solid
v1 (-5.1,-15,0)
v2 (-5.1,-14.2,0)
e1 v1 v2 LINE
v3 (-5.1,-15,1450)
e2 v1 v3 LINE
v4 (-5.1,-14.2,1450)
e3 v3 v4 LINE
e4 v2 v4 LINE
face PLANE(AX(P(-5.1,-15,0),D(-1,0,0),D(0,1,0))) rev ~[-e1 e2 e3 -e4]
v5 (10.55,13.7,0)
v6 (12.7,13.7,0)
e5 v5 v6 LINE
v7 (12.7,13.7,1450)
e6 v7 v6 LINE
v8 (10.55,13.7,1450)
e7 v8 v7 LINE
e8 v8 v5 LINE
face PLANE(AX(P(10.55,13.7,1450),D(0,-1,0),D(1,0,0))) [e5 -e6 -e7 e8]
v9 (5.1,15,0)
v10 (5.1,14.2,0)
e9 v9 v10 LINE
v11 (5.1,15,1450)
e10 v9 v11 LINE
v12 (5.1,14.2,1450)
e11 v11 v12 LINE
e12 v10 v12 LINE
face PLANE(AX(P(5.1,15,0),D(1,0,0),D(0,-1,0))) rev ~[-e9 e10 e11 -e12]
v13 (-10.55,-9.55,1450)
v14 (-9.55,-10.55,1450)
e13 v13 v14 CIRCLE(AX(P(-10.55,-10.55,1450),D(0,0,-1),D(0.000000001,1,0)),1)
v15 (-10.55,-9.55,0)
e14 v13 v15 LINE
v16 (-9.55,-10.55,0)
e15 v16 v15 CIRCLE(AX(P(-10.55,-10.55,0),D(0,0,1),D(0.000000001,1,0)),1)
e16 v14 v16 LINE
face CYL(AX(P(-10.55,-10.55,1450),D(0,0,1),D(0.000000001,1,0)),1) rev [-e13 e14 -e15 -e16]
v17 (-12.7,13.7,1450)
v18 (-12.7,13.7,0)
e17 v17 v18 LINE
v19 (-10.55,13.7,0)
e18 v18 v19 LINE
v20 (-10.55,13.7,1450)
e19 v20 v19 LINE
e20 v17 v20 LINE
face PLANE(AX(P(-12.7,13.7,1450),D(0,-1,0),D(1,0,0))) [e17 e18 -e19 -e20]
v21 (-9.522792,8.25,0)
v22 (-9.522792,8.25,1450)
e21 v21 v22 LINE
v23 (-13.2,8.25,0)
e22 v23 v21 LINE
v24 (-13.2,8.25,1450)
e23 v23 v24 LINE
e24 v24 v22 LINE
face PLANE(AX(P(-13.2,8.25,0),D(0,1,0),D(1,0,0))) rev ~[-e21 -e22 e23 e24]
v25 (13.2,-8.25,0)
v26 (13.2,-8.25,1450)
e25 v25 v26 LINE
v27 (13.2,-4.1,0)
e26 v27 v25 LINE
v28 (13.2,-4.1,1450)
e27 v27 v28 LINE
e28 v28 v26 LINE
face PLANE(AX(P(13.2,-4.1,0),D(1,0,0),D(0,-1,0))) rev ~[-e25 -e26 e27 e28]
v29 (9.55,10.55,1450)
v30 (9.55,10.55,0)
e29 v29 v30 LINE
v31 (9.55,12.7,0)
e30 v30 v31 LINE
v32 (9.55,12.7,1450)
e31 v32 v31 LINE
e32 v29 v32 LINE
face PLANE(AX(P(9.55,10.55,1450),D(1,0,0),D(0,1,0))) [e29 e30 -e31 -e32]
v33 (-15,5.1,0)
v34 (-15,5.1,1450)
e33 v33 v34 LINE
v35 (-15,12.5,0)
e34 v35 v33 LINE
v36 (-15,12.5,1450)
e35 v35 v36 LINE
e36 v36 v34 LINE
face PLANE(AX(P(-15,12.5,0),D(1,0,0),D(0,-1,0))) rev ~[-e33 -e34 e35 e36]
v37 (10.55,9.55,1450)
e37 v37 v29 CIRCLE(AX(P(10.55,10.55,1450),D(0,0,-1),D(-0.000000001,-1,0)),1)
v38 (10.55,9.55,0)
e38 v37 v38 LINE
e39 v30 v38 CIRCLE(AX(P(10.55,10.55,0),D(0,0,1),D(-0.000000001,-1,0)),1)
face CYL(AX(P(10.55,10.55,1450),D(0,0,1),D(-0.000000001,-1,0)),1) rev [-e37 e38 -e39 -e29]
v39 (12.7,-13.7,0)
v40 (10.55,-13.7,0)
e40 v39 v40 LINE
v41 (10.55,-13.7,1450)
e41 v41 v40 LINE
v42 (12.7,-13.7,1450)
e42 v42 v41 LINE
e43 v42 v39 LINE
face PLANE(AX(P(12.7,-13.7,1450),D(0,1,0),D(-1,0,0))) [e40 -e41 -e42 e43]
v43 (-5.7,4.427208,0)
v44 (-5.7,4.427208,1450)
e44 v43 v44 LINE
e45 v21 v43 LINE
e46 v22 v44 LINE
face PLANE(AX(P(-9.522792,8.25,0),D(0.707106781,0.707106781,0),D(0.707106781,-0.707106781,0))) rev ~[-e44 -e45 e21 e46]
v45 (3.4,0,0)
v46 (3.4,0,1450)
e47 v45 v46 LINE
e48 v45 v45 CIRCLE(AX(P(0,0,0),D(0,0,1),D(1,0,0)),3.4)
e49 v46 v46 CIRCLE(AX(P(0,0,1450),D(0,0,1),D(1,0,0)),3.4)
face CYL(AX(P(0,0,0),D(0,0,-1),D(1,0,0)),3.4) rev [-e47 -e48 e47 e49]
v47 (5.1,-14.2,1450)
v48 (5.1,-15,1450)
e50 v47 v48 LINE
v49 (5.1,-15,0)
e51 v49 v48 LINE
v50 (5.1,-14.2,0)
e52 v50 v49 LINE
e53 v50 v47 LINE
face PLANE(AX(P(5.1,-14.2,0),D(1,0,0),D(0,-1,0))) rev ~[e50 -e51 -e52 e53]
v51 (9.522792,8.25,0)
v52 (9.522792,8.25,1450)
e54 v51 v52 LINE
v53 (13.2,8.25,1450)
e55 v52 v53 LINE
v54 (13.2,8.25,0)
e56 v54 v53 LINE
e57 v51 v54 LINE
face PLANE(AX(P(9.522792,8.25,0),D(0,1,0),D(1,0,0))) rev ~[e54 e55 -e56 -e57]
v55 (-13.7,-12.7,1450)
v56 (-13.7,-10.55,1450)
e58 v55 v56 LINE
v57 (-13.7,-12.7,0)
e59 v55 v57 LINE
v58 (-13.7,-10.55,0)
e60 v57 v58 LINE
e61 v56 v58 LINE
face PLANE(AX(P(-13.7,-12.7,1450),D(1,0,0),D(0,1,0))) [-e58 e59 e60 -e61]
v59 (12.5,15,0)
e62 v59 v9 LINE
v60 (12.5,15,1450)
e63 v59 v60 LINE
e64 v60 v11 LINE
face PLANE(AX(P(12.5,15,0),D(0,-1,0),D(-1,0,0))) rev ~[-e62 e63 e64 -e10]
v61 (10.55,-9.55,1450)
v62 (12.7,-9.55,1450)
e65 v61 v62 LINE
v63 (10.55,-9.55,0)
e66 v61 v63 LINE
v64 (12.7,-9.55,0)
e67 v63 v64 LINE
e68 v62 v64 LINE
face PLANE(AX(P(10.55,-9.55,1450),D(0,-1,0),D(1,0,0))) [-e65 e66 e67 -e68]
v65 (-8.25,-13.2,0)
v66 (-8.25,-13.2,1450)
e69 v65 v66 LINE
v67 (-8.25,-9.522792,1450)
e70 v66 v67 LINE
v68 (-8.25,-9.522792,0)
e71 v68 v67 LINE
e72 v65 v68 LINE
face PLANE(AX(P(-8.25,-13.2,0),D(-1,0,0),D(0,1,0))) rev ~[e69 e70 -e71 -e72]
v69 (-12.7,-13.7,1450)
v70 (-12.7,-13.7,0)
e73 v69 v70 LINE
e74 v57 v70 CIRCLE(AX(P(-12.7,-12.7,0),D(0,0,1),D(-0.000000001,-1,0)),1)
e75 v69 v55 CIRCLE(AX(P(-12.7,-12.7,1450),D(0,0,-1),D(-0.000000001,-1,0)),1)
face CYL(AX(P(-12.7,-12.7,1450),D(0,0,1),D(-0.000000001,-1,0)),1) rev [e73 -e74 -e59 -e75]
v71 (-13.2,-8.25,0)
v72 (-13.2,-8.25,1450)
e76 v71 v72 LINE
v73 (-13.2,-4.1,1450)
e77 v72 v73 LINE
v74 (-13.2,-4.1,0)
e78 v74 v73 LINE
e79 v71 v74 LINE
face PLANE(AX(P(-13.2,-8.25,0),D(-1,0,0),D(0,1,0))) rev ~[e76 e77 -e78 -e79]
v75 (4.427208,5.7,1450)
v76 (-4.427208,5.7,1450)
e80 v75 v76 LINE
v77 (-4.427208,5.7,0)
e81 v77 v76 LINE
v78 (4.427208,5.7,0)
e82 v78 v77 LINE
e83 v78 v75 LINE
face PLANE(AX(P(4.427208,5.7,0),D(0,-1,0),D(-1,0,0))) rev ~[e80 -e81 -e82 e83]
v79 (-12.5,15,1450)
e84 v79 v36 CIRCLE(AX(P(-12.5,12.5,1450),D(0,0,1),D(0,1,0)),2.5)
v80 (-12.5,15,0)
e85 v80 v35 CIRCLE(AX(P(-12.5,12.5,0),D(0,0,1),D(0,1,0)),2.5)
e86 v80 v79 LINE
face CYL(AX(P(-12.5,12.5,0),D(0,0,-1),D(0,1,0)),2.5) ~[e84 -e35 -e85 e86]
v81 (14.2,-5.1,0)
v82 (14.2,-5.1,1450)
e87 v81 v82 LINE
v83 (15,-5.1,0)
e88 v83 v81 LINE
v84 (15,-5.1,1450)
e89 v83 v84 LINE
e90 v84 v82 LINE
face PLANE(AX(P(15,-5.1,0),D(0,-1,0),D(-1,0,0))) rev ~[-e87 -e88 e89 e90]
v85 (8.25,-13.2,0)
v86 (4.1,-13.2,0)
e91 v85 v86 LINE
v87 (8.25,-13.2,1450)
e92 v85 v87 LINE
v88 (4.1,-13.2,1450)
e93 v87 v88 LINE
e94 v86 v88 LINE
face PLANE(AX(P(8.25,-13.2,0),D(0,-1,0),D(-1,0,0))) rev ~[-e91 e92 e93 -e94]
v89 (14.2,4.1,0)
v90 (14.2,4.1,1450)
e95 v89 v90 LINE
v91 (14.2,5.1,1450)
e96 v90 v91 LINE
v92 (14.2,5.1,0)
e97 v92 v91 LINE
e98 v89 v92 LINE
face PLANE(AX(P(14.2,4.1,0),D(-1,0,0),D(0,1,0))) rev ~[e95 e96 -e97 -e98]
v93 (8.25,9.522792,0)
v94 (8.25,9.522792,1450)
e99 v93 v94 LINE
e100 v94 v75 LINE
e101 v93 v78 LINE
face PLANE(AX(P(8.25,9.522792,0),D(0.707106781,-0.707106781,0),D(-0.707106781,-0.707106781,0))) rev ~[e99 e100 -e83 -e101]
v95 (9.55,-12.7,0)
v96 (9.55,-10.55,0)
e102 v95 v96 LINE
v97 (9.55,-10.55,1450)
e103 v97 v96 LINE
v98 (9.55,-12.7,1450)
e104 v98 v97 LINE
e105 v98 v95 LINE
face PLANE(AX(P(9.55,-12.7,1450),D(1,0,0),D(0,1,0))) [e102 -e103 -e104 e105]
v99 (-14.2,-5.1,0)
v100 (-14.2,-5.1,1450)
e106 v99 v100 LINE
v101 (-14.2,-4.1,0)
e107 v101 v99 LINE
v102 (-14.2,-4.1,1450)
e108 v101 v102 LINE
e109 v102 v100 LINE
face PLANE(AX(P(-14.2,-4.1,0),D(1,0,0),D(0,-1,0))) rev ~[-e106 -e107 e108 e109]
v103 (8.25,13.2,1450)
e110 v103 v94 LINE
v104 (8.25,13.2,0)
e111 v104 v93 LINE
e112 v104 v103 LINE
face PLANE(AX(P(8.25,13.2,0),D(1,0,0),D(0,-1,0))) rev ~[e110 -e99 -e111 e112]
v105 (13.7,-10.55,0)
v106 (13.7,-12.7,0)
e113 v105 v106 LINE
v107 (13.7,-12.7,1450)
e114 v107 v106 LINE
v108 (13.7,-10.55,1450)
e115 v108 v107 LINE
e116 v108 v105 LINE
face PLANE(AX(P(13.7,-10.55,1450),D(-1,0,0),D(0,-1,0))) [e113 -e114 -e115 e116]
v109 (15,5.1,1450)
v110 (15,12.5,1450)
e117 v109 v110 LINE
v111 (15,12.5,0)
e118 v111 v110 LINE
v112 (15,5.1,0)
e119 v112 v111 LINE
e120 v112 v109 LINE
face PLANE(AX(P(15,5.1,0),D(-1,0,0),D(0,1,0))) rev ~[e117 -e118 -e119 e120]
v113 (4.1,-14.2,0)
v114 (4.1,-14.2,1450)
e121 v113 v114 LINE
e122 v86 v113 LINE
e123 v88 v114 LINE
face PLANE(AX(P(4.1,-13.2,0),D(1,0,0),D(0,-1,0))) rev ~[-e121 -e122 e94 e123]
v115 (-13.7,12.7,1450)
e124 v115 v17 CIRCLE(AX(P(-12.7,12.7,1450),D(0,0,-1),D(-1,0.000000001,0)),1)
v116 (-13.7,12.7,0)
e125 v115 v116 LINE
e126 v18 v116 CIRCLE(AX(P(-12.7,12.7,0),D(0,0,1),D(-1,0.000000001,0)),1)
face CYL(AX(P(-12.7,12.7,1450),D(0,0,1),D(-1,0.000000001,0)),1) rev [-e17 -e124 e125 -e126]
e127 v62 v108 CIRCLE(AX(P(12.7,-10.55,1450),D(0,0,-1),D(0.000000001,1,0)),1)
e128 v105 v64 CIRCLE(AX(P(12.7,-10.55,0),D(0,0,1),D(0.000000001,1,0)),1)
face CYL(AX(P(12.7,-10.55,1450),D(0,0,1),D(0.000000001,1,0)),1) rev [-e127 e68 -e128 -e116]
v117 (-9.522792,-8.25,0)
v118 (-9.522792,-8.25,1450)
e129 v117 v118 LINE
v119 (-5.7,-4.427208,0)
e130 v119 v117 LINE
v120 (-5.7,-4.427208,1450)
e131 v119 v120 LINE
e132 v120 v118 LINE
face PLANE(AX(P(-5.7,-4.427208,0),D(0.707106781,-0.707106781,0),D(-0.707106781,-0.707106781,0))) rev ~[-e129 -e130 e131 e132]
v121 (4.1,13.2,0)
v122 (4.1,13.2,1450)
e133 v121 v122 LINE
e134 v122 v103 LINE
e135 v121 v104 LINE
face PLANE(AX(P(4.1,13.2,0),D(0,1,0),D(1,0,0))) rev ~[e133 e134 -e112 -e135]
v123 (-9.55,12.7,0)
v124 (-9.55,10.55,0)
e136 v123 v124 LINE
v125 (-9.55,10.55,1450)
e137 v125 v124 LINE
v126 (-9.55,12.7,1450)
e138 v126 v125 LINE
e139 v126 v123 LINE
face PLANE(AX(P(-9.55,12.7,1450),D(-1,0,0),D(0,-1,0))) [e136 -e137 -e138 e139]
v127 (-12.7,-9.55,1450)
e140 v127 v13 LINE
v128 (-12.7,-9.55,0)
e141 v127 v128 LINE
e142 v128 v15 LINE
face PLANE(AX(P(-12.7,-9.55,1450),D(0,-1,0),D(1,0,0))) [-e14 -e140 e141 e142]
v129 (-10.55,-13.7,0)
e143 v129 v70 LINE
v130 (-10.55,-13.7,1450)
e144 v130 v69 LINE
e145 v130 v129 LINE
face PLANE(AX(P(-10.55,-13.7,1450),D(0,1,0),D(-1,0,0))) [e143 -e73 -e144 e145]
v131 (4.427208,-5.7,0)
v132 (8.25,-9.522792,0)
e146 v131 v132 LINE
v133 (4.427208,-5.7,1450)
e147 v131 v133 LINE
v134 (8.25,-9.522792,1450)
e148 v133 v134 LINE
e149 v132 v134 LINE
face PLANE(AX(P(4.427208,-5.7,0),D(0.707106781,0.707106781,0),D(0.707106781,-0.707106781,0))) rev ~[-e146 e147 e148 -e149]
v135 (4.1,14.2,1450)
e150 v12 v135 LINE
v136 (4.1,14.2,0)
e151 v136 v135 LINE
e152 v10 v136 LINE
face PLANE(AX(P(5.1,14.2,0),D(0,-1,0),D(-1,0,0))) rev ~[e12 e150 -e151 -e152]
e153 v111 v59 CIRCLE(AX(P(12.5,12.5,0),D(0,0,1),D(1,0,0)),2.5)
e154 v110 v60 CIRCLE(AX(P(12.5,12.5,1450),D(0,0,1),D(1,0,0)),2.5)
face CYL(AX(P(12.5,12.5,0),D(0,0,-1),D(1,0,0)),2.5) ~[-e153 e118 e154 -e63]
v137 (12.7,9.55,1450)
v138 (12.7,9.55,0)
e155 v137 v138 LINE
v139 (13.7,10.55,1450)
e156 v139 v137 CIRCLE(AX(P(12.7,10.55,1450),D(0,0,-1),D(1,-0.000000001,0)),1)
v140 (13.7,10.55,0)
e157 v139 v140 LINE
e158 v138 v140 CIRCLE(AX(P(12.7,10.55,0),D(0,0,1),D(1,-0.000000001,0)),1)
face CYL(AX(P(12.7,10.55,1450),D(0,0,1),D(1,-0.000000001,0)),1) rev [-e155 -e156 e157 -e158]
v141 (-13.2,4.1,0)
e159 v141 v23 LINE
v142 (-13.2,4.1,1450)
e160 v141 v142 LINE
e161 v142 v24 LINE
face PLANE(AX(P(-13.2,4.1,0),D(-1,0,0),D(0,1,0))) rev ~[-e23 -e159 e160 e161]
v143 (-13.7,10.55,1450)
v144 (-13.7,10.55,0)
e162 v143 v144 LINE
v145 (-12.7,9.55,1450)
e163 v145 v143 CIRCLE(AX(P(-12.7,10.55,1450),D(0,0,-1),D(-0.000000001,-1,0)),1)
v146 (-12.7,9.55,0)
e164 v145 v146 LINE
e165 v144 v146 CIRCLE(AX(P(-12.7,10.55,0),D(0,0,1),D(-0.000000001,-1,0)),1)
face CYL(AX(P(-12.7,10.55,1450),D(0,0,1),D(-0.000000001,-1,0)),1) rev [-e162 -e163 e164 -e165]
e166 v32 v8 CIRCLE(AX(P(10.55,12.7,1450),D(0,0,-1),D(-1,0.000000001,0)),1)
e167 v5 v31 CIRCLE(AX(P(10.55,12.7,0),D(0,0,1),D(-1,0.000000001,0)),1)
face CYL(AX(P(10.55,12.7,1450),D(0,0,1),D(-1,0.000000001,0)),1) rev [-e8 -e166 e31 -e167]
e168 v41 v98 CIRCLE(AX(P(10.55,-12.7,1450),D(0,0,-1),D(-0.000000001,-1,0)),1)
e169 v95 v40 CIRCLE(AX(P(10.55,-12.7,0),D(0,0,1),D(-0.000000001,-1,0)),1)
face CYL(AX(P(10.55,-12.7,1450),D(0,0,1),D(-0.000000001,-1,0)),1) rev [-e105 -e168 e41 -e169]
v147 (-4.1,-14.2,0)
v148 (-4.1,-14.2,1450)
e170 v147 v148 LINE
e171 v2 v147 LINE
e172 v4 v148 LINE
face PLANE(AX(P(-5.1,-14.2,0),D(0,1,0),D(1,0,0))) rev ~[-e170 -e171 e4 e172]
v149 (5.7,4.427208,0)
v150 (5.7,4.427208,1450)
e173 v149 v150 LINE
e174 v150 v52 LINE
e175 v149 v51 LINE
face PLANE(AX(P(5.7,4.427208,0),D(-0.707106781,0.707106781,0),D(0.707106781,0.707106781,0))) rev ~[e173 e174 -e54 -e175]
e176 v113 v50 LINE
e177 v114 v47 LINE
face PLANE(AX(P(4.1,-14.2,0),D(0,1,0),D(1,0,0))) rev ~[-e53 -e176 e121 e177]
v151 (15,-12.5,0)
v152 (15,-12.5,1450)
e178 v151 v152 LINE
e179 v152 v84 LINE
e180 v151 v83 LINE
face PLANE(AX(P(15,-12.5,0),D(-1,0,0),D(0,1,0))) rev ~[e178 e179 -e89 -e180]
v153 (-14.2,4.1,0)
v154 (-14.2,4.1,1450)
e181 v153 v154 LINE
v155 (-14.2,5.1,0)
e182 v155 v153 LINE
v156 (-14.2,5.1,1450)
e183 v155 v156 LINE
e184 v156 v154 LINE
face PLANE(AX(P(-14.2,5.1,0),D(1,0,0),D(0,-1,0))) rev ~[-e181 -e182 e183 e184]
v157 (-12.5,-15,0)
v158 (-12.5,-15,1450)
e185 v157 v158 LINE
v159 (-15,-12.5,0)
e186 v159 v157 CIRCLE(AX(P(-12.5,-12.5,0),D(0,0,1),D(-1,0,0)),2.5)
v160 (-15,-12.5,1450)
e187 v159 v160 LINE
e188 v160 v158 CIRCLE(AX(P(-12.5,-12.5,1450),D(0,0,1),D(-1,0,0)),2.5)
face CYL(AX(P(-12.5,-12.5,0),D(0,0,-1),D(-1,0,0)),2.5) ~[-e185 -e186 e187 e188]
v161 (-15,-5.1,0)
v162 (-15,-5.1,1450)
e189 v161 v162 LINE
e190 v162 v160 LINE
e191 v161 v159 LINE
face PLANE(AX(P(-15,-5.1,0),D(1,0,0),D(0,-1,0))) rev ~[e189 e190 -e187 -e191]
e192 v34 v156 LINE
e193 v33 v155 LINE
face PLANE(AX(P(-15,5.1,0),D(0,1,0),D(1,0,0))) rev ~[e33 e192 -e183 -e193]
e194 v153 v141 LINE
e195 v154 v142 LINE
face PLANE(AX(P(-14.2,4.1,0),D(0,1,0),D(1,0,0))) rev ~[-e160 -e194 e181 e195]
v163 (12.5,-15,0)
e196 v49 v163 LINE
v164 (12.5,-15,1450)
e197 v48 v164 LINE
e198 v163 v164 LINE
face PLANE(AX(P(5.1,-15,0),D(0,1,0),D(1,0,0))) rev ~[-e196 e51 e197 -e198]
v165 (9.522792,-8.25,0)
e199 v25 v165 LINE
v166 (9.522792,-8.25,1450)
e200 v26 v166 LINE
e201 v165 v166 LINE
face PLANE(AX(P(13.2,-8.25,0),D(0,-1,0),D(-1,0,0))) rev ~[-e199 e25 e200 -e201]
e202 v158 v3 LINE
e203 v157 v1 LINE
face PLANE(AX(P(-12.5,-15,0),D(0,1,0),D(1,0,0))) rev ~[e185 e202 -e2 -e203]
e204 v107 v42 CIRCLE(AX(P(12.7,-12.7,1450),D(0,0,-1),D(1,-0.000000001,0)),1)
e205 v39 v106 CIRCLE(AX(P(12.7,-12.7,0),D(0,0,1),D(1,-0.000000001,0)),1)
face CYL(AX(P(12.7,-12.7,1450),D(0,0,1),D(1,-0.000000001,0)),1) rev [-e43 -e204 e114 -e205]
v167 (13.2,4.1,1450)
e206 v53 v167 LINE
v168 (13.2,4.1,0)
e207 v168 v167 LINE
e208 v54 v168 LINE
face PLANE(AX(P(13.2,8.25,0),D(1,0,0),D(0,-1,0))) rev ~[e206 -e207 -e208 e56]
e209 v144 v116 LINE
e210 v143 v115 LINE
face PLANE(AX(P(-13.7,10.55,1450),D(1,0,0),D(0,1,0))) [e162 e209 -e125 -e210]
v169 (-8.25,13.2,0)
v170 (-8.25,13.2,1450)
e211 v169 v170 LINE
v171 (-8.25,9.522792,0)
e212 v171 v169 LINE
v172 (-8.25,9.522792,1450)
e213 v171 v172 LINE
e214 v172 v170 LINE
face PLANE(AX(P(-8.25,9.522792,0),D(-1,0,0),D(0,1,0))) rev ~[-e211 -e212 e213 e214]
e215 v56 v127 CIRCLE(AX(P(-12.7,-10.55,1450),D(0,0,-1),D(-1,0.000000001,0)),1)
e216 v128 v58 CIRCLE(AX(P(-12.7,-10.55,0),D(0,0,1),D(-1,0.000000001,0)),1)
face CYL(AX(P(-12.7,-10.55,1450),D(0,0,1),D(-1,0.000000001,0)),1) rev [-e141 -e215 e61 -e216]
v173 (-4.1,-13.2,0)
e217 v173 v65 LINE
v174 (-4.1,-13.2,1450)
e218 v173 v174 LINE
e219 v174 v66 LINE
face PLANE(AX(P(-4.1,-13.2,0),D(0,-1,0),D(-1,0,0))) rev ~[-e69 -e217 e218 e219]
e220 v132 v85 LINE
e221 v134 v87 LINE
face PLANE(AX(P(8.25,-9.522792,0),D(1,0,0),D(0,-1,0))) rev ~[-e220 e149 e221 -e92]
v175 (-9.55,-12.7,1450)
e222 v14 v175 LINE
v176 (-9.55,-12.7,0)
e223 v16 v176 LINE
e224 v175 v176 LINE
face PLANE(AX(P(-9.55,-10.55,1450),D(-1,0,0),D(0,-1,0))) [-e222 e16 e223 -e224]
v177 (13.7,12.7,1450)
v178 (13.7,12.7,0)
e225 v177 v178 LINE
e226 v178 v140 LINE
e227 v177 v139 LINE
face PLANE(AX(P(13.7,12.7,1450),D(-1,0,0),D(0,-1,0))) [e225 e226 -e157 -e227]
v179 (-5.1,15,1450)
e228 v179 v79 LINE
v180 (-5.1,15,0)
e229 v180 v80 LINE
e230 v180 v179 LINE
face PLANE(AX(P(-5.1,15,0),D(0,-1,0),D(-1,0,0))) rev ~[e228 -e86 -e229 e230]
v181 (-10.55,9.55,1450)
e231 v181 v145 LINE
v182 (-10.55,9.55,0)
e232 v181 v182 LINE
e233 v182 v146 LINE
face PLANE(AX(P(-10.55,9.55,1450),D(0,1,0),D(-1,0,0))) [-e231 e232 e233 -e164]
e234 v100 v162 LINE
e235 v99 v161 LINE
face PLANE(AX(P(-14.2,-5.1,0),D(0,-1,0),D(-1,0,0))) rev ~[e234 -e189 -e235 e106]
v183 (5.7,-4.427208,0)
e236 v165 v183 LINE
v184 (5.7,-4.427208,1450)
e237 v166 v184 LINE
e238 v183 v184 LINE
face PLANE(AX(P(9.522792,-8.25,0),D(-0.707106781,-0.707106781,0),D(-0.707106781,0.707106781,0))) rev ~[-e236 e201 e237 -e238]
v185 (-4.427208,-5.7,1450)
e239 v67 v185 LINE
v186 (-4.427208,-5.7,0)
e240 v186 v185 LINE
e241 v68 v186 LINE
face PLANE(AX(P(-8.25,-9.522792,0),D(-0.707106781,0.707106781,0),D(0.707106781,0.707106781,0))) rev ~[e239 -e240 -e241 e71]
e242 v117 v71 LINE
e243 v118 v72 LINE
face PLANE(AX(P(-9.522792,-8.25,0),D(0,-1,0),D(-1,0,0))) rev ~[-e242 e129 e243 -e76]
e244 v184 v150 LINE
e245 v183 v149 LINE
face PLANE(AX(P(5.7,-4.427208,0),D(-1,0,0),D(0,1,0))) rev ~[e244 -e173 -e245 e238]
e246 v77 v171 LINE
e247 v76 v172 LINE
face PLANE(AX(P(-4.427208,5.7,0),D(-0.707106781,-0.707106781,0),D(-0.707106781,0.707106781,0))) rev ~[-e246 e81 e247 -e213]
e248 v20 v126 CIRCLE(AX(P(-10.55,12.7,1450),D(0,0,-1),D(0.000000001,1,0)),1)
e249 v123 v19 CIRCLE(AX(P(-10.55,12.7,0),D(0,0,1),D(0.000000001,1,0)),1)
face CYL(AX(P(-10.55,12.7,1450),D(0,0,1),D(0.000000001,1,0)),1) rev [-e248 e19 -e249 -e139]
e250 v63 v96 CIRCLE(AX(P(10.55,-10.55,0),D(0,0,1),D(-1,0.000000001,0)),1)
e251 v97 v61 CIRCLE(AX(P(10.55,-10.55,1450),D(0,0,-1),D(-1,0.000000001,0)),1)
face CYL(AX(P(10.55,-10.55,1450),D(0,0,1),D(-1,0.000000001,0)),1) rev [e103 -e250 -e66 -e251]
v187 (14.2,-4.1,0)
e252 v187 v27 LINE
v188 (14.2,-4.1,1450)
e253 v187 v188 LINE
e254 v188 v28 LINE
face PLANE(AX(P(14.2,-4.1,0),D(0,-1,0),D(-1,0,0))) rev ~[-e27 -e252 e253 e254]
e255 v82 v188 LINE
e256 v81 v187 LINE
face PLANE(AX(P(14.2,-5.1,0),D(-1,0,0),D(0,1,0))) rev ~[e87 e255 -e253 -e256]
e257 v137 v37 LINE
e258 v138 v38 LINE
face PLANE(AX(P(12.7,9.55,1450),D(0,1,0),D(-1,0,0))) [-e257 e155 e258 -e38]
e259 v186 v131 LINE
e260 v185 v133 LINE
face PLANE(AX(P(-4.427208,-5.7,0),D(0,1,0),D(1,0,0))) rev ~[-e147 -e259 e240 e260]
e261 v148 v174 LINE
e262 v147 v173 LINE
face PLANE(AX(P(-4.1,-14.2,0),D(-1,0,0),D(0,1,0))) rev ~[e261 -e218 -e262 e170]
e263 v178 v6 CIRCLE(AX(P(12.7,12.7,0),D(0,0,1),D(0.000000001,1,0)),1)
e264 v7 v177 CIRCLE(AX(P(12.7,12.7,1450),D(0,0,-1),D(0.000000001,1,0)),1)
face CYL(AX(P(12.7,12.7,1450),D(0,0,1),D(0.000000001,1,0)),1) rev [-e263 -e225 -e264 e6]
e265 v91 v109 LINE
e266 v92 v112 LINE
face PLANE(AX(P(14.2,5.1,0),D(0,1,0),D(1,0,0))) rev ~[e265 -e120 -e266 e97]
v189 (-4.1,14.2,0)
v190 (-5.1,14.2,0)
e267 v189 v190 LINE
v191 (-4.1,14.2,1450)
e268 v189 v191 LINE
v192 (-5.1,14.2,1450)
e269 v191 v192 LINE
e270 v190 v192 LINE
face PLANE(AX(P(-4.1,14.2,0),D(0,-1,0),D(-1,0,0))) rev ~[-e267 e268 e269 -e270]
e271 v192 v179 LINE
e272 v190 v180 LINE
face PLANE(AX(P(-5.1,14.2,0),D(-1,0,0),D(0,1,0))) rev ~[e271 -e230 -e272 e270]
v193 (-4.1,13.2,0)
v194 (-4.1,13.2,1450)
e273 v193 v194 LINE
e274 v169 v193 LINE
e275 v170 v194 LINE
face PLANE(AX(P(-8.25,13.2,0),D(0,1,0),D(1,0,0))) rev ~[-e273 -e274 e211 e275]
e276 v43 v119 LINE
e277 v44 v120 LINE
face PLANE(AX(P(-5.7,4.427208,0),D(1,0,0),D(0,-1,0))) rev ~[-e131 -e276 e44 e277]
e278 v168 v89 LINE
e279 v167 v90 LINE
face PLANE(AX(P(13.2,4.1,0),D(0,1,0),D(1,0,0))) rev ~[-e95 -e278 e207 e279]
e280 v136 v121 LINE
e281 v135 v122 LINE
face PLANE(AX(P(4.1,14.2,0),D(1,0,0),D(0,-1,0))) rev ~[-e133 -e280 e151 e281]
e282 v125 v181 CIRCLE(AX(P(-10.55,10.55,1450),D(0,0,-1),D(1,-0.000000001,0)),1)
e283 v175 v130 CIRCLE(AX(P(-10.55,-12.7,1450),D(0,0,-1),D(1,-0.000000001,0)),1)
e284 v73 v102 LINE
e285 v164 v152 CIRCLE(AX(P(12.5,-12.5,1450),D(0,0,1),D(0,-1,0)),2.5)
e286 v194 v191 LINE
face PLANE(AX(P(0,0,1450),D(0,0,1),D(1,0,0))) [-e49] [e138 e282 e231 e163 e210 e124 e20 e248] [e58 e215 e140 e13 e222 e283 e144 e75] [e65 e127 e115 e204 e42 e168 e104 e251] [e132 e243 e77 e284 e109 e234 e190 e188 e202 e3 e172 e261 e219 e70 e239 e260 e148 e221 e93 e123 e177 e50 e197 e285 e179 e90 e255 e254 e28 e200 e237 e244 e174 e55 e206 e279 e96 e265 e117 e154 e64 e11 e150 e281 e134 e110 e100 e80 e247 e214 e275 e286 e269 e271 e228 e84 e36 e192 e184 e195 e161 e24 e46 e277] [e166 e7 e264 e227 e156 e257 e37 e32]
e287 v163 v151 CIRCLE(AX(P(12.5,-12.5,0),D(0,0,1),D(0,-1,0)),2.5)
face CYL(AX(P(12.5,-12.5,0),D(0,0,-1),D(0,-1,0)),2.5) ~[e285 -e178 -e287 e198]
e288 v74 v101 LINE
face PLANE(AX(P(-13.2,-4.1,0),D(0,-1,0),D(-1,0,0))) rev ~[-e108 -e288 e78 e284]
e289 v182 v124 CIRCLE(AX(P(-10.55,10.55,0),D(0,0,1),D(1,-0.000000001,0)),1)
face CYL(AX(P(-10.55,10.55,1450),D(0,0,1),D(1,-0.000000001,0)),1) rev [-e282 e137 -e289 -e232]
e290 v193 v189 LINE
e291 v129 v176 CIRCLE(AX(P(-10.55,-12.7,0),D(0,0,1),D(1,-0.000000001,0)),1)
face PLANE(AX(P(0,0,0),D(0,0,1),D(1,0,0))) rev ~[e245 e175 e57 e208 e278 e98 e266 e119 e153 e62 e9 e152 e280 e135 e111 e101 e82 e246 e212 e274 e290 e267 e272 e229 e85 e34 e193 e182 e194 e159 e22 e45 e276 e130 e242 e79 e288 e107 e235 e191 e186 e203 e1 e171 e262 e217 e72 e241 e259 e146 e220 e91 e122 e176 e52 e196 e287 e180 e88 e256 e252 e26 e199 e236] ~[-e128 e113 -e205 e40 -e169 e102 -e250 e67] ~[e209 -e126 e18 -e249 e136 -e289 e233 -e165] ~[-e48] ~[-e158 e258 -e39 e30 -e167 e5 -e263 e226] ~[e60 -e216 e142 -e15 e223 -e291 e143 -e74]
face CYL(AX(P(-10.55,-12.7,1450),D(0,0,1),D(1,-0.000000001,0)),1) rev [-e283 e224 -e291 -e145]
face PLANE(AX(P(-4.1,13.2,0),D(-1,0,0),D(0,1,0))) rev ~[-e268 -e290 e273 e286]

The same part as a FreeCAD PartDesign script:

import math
import FreeCAD as App
import Part
import Sketcher

doc = App.newDocument("Part")
params = doc.addObject("Spreadsheet::Sheet", "Params")
for row, (alias, value) in enumerate([
    ("sketch1_diameter", "6.8 mm"),
    ("sketch1_radius", "2.5 mm"),
    ("sketch1_width", "1 mm"),
    ("sketch1_width2", "7.4 mm"),
    ("sketch1_width3", "0.8 mm"),
    ("pad1_length", "1450 mm"),
    ("sketch2_radius", "1 mm"),
    ("sketch2_width", "2.15 mm"),
], start=1):
    params.set(f"A{row}", alias)
    params.set(f"B{row}", "=" + value)
    params.setAlias(f"B{row}", alias)

body = doc.addObject("PartDesign::Body", "Body")

sketch1 = body.newObject("Sketcher::SketchObject", "Sketch")
sketch1.AttachmentSupport = (doc.getObject("XY_Plane"), [""])
sketch1.MapMode = "FlatFace"
sketch1.addGeometry(Part.LineSegment(App.Vector(-5.1, 14.2, 0), App.Vector(-5.1, 15, 0)), False)
sketch1.addGeometry(Part.LineSegment(App.Vector(-5.1, 15, 0), App.Vector(-12.5, 15, 0)), False)
sketch1.addGeometry(Part.ArcOfCircle(Part.Circle(App.Vector(-12.5, 12.5, 0), App.Vector(0, 0, 1), 2.5), math.radians(90), math.radians(180)), False)
sketch1.addGeometry(Part.LineSegment(App.Vector(-15, 12.5, 0), App.Vector(-15, 5.1, 0)), False)
sketch1.addGeometry(Part.LineSegment(App.Vector(-15, 5.1, 0), App.Vector(-14.2, 5.1, 0)), False)
sketch1.addGeometry(Part.LineSegment(App.Vector(-14.2, 5.1, 0), App.Vector(-14.2, 4.1, 0)), False)
sketch1.addGeometry(Part.LineSegment(App.Vector(-14.2, 4.1, 0), App.Vector(-13.2, 4.1, 0)), False)
sketch1.addGeometry(Part.LineSegment(App.Vector(-13.2, 4.1, 0), App.Vector(-13.2, 8.2, 0)), False)
sketch1.addGeometry(Part.LineSegment(App.Vector(-13.2, 8.2, 0), App.Vector(-9.5, 8.2, 0)), False)
sketch1.addGeometry(Part.LineSegment(App.Vector(-9.5, 8.2, 0), App.Vector(-5.7, 4.4, 0)), False)
sketch1.addGeometry(Part.LineSegment(App.Vector(-5.7, 4.4, 0), App.Vector(-5.7, -4.4, 0)), False)
sketch1.addGeometry(Part.LineSegment(App.Vector(-5.7, -4.4, 0), App.Vector(-9.5, -8.2, 0)), False)
sketch1.addGeometry(Part.LineSegment(App.Vector(-9.5, -8.2, 0), App.Vector(-13.2, -8.2, 0)), False)
sketch1.addGeometry(Part.LineSegment(App.Vector(-13.2, -8.2, 0), App.Vector(-13.2, -4.1, 0)), False)
sketch1.addGeometry(Part.LineSegment(App.Vector(-13.2, -4.1, 0), App.Vector(-14.2, -4.1, 0)), False)
sketch1.addGeometry(Part.LineSegment(App.Vector(-14.2, -4.1, 0), App.Vector(-14.2, -5.1, 0)), False)
sketch1.addGeometry(Part.LineSegment(App.Vector(-14.2, -5.1, 0), App.Vector(-15, -5.1, 0)), False)
sketch1.addGeometry(Part.LineSegment(App.Vector(-15, -5.1, 0), App.Vector(-15, -12.5, 0)), False)
sketch1.addGeometry(Part.ArcOfCircle(Part.Circle(App.Vector(-12.5, -12.5, 0), App.Vector(0, 0, 1), 2.5), math.radians(180), math.radians(270)), False)
sketch1.addGeometry(Part.LineSegment(App.Vector(-12.5, -15, 0), App.Vector(-5.1, -15, 0)), False)
sketch1.addGeometry(Part.LineSegment(App.Vector(-5.1, -15, 0), App.Vector(-5.1, -14.2, 0)), False)
sketch1.addGeometry(Part.LineSegment(App.Vector(-5.1, -14.2, 0), App.Vector(-4.1, -14.2, 0)), False)
sketch1.addGeometry(Part.LineSegment(App.Vector(-4.1, -14.2, 0), App.Vector(-4.1, -13.2, 0)), False)
sketch1.addGeometry(Part.LineSegment(App.Vector(-4.1, -13.2, 0), App.Vector(-8.2, -13.2, 0)), False)
sketch1.addGeometry(Part.LineSegment(App.Vector(-8.2, -13.2, 0), App.Vector(-8.2, -9.5, 0)), False)
sketch1.addGeometry(Part.LineSegment(App.Vector(-8.2, -9.5, 0), App.Vector(-4.4, -5.7, 0)), False)
sketch1.addGeometry(Part.LineSegment(App.Vector(-4.4, -5.7, 0), App.Vector(4.4, -5.7, 0)), False)
sketch1.addGeometry(Part.LineSegment(App.Vector(4.4, -5.7, 0), App.Vector(8.2, -9.5, 0)), False)
sketch1.addGeometry(Part.LineSegment(App.Vector(8.2, -9.5, 0), App.Vector(8.2, -13.2, 0)), False)
sketch1.addGeometry(Part.LineSegment(App.Vector(8.2, -13.2, 0), App.Vector(4.1, -13.2, 0)), False)
sketch1.addGeometry(Part.LineSegment(App.Vector(4.1, -13.2, 0), App.Vector(4.1, -14.2, 0)), False)
sketch1.addGeometry(Part.LineSegment(App.Vector(4.1, -14.2, 0), App.Vector(5.1, -14.2, 0)), False)
sketch1.addGeometry(Part.LineSegment(App.Vector(5.1, -14.2, 0), App.Vector(5.1, -15, 0)), False)
sketch1.addGeometry(Part.LineSegment(App.Vector(5.1, -15, 0), App.Vector(12.5, -15, 0)), False)
sketch1.addGeometry(Part.ArcOfCircle(Part.Circle(App.Vector(12.5, -12.5, 0), App.Vector(0, 0, 1), 2.5), math.radians(-90), math.radians(0)), False)
sketch1.addGeometry(Part.LineSegment(App.Vector(15, -12.5, 0), App.Vector(15, -5.1, 0)), False)
sketch1.addGeometry(Part.LineSegment(App.Vector(15, -5.1, 0), App.Vector(14.2, -5.1, 0)), False)
sketch1.addGeometry(Part.LineSegment(App.Vector(14.2, -5.1, 0), App.Vector(14.2, -4.1, 0)), False)
sketch1.addGeometry(Part.LineSegment(App.Vector(14.2, -4.1, 0), App.Vector(13.2, -4.1, 0)), False)
sketch1.addGeometry(Part.LineSegment(App.Vector(13.2, -4.1, 0), App.Vector(13.2, -8.2, 0)), False)
sketch1.addGeometry(Part.LineSegment(App.Vector(13.2, -8.2, 0), App.Vector(9.5, -8.2, 0)), False)
sketch1.addGeometry(Part.LineSegment(App.Vector(9.5, -8.2, 0), App.Vector(5.7, -4.4, 0)), False)
sketch1.addGeometry(Part.LineSegment(App.Vector(5.7, -4.4, 0), App.Vector(5.7, 4.4, 0)), False)
sketch1.addGeometry(Part.LineSegment(App.Vector(5.7, 4.4, 0), App.Vector(9.5, 8.2, 0)), False)
sketch1.addGeometry(Part.LineSegment(App.Vector(9.5, 8.2, 0), App.Vector(13.2, 8.2, 0)), False)
sketch1.addGeometry(Part.LineSegment(App.Vector(13.2, 8.2, 0), App.Vector(13.2, 4.1, 0)), False)
sketch1.addGeometry(Part.LineSegment(App.Vector(13.2, 4.1, 0), App.Vector(14.2, 4.1, 0)), False)
sketch1.addGeometry(Part.LineSegment(App.Vector(14.2, 4.1, 0), App.Vector(14.2, 5.1, 0)), False)
sketch1.addGeometry(Part.LineSegment(App.Vector(14.2, 5.1, 0), App.Vector(15, 5.1, 0)), False)
sketch1.addGeometry(Part.LineSegment(App.Vector(15, 5.1, 0), App.Vector(15, 12.5, 0)), False)
sketch1.addGeometry(Part.ArcOfCircle(Part.Circle(App.Vector(12.5, 12.5, 0), App.Vector(0, 0, 1), 2.5), math.radians(0), math.radians(90)), False)
sketch1.addGeometry(Part.LineSegment(App.Vector(12.5, 15, 0), App.Vector(5.1, 15, 0)), False)
sketch1.addGeometry(Part.LineSegment(App.Vector(5.1, 15, 0), App.Vector(5.1, 14.2, 0)), False)
sketch1.addGeometry(Part.LineSegment(App.Vector(5.1, 14.2, 0), App.Vector(4.1, 14.2, 0)), False)
sketch1.addGeometry(Part.LineSegment(App.Vector(4.1, 14.2, 0), App.Vector(4.1, 13.2, 0)), False)
sketch1.addGeometry(Part.LineSegment(App.Vector(4.1, 13.2, 0), App.Vector(8.2, 13.2, 0)), False)
sketch1.addGeometry(Part.LineSegment(App.Vector(8.2, 13.2, 0), App.Vector(8.2, 9.5, 0)), False)
sketch1.addGeometry(Part.LineSegment(App.Vector(8.2, 9.5, 0), App.Vector(4.4, 5.7, 0)), False)
sketch1.addGeometry(Part.LineSegment(App.Vector(4.4, 5.7, 0), App.Vector(-4.4, 5.7, 0)), False)
sketch1.addGeometry(Part.LineSegment(App.Vector(-4.4, 5.7, 0), App.Vector(-8.2, 9.5, 0)), False)
sketch1.addGeometry(Part.LineSegment(App.Vector(-8.2, 9.5, 0), App.Vector(-8.2, 13.2, 0)), False)
sketch1.addGeometry(Part.LineSegment(App.Vector(-8.2, 13.2, 0), App.Vector(-4.1, 13.2, 0)), False)
sketch1.addGeometry(Part.LineSegment(App.Vector(-4.1, 13.2, 0), App.Vector(-4.1, 14.2, 0)), False)
sketch1.addGeometry(Part.LineSegment(App.Vector(-4.1, 14.2, 0), App.Vector(-5.1, 14.2, 0)), False)
sketch1.addGeometry(Part.Circle(App.Vector(0, 0, 0), App.Vector(0, 0, 1), 3.4), False)
sketch1.addConstraint(Sketcher.Constraint("Coincident", 0, 2, 1, 1))
sketch1.addConstraint(Sketcher.Constraint("Tangent", 1, 2, 2, 1))
sketch1.addConstraint(Sketcher.Constraint("Tangent", 2, 2, 3, 1))
sketch1.addConstraint(Sketcher.Constraint("Coincident", 3, 2, 4, 1))
sketch1.addConstraint(Sketcher.Constraint("Coincident", 4, 2, 5, 1))
sketch1.addConstraint(Sketcher.Constraint("Coincident", 5, 2, 6, 1))
sketch1.addConstraint(Sketcher.Constraint("Coincident", 6, 2, 7, 1))
sketch1.addConstraint(Sketcher.Constraint("Coincident", 7, 2, 8, 1))
sketch1.addConstraint(Sketcher.Constraint("Coincident", 8, 2, 9, 1))
sketch1.addConstraint(Sketcher.Constraint("Coincident", 9, 2, 10, 1))
sketch1.addConstraint(Sketcher.Constraint("Coincident", 10, 2, 11, 1))
sketch1.addConstraint(Sketcher.Constraint("Coincident", 11, 2, 12, 1))
sketch1.addConstraint(Sketcher.Constraint("Coincident", 12, 2, 13, 1))
sketch1.addConstraint(Sketcher.Constraint("Coincident", 13, 2, 14, 1))
sketch1.addConstraint(Sketcher.Constraint("Coincident", 14, 2, 15, 1))
sketch1.addConstraint(Sketcher.Constraint("Coincident", 15, 2, 16, 1))
sketch1.addConstraint(Sketcher.Constraint("Coincident", 16, 2, 17, 1))
sketch1.addConstraint(Sketcher.Constraint("Tangent", 17, 2, 18, 1))
sketch1.addConstraint(Sketcher.Constraint("Tangent", 18, 2, 19, 1))
sketch1.addConstraint(Sketcher.Constraint("Coincident", 19, 2, 20, 1))
sketch1.addConstraint(Sketcher.Constraint("Coincident", 20, 2, 21, 1))
sketch1.addConstraint(Sketcher.Constraint("Coincident", 21, 2, 22, 1))
sketch1.addConstraint(Sketcher.Constraint("Coincident", 22, 2, 23, 1))
sketch1.addConstraint(Sketcher.Constraint("Coincident", 23, 2, 24, 1))
sketch1.addConstraint(Sketcher.Constraint("Coincident", 24, 2, 25, 1))
sketch1.addConstraint(Sketcher.Constraint("Coincident", 25, 2, 26, 1))
sketch1.addConstraint(Sketcher.Constraint("Coincident", 26, 2, 27, 1))
sketch1.addConstraint(Sketcher.Constraint("Coincident", 27, 2, 28, 1))
sketch1.addConstraint(Sketcher.Constraint("Coincident", 28, 2, 29, 1))
sketch1.addConstraint(Sketcher.Constraint("Coincident", 29, 2, 30, 1))
sketch1.addConstraint(Sketcher.Constraint("Coincident", 30, 2, 31, 1))
sketch1.addConstraint(Sketcher.Constraint("Coincident", 31, 2, 32, 1))
sketch1.addConstraint(Sketcher.Constraint("Coincident", 32, 2, 33, 1))
sketch1.addConstraint(Sketcher.Constraint("Tangent", 33, 2, 34, 1))
sketch1.addConstraint(Sketcher.Constraint("Tangent", 34, 2, 35, 1))
sketch1.addConstraint(Sketcher.Constraint("Coincident", 35, 2, 36, 1))
sketch1.addConstraint(Sketcher.Constraint("Coincident", 36, 2, 37, 1))
sketch1.addConstraint(Sketcher.Constraint("Coincident", 37, 2, 38, 1))
sketch1.addConstraint(Sketcher.Constraint("Coincident", 38, 2, 39, 1))
sketch1.addConstraint(Sketcher.Constraint("Coincident", 39, 2, 40, 1))
sketch1.addConstraint(Sketcher.Constraint("Coincident", 40, 2, 41, 1))
sketch1.addConstraint(Sketcher.Constraint("Coincident", 41, 2, 42, 1))
sketch1.addConstraint(Sketcher.Constraint("Coincident", 42, 2, 43, 1))
sketch1.addConstraint(Sketcher.Constraint("Coincident", 43, 2, 44, 1))
sketch1.addConstraint(Sketcher.Constraint("Coincident", 44, 2, 45, 1))
sketch1.addConstraint(Sketcher.Constraint("Coincident", 45, 2, 46, 1))
sketch1.addConstraint(Sketcher.Constraint("Coincident", 46, 2, 47, 1))
sketch1.addConstraint(Sketcher.Constraint("Coincident", 47, 2, 48, 1))
sketch1.addConstraint(Sketcher.Constraint("Coincident", 48, 2, 49, 1))
sketch1.addConstraint(Sketcher.Constraint("Tangent", 49, 2, 50, 1))
sketch1.addConstraint(Sketcher.Constraint("Tangent", 50, 2, 51, 1))
sketch1.addConstraint(Sketcher.Constraint("Coincident", 51, 2, 52, 1))
sketch1.addConstraint(Sketcher.Constraint("Coincident", 52, 2, 53, 1))
sketch1.addConstraint(Sketcher.Constraint("Coincident", 53, 2, 54, 1))
sketch1.addConstraint(Sketcher.Constraint("Coincident", 54, 2, 55, 1))
sketch1.addConstraint(Sketcher.Constraint("Coincident", 55, 2, 56, 1))
sketch1.addConstraint(Sketcher.Constraint("Coincident", 56, 2, 57, 1))
sketch1.addConstraint(Sketcher.Constraint("Coincident", 57, 2, 58, 1))
sketch1.addConstraint(Sketcher.Constraint("Coincident", 58, 2, 59, 1))
sketch1.addConstraint(Sketcher.Constraint("Coincident", 59, 2, 60, 1))
sketch1.addConstraint(Sketcher.Constraint("Coincident", 60, 2, 61, 1))
sketch1.addConstraint(Sketcher.Constraint("Coincident", 61, 2, 62, 1))
sketch1.addConstraint(Sketcher.Constraint("Coincident", 62, 2, 63, 1))
sketch1.addConstraint(Sketcher.Constraint("Coincident", 63, 2, 0, 1))
sketch1.addConstraint(Sketcher.Constraint("Vertical", 0))
sketch1.addConstraint(Sketcher.Constraint("Horizontal", 1))
sketch1.addConstraint(Sketcher.Constraint("Vertical", 3))
sketch1.addConstraint(Sketcher.Constraint("Horizontal", 4))
sketch1.addConstraint(Sketcher.Constraint("Vertical", 5))
sketch1.addConstraint(Sketcher.Constraint("Horizontal", 6))
sketch1.addConstraint(Sketcher.Constraint("Vertical", 7))
sketch1.addConstraint(Sketcher.Constraint("Horizontal", 8))
sketch1.addConstraint(Sketcher.Constraint("Vertical", 10))
sketch1.addConstraint(Sketcher.Constraint("Horizontal", 12))
sketch1.addConstraint(Sketcher.Constraint("Vertical", 13))
sketch1.addConstraint(Sketcher.Constraint("Horizontal", 14))
sketch1.addConstraint(Sketcher.Constraint("Vertical", 15))
sketch1.addConstraint(Sketcher.Constraint("Horizontal", 16))
sketch1.addConstraint(Sketcher.Constraint("Vertical", 17))
sketch1.addConstraint(Sketcher.Constraint("Horizontal", 19))
sketch1.addConstraint(Sketcher.Constraint("Vertical", 20))
sketch1.addConstraint(Sketcher.Constraint("Horizontal", 21))
sketch1.addConstraint(Sketcher.Constraint("Vertical", 22))
sketch1.addConstraint(Sketcher.Constraint("Horizontal", 23))
sketch1.addConstraint(Sketcher.Constraint("Vertical", 24))
sketch1.addConstraint(Sketcher.Constraint("Horizontal", 26))
sketch1.addConstraint(Sketcher.Constraint("Vertical", 28))
sketch1.addConstraint(Sketcher.Constraint("Horizontal", 29))
sketch1.addConstraint(Sketcher.Constraint("Vertical", 30))
sketch1.addConstraint(Sketcher.Constraint("Horizontal", 31))
sketch1.addConstraint(Sketcher.Constraint("Vertical", 32))
sketch1.addConstraint(Sketcher.Constraint("Horizontal", 33))
sketch1.addConstraint(Sketcher.Constraint("Vertical", 35))
sketch1.addConstraint(Sketcher.Constraint("Horizontal", 36))
sketch1.addConstraint(Sketcher.Constraint("Vertical", 37))
sketch1.addConstraint(Sketcher.Constraint("Horizontal", 38))
sketch1.addConstraint(Sketcher.Constraint("Vertical", 39))
sketch1.addConstraint(Sketcher.Constraint("Horizontal", 40))
sketch1.addConstraint(Sketcher.Constraint("Vertical", 42))
sketch1.addConstraint(Sketcher.Constraint("Horizontal", 44))
sketch1.addConstraint(Sketcher.Constraint("Vertical", 45))
sketch1.addConstraint(Sketcher.Constraint("Horizontal", 46))
sketch1.addConstraint(Sketcher.Constraint("Vertical", 47))
sketch1.addConstraint(Sketcher.Constraint("Horizontal", 48))
sketch1.addConstraint(Sketcher.Constraint("Vertical", 49))
sketch1.addConstraint(Sketcher.Constraint("Horizontal", 51))
sketch1.addConstraint(Sketcher.Constraint("Vertical", 52))
sketch1.addConstraint(Sketcher.Constraint("Horizontal", 53))
sketch1.addConstraint(Sketcher.Constraint("Vertical", 54))
sketch1.addConstraint(Sketcher.Constraint("Horizontal", 55))
sketch1.addConstraint(Sketcher.Constraint("Vertical", 56))
sketch1.addConstraint(Sketcher.Constraint("Horizontal", 58))
sketch1.addConstraint(Sketcher.Constraint("Vertical", 60))
sketch1.addConstraint(Sketcher.Constraint("Horizontal", 61))
sketch1.addConstraint(Sketcher.Constraint("Vertical", 62))
sketch1.addConstraint(Sketcher.Constraint("Horizontal", 63))
sketch1.addConstraint(Sketcher.Constraint("Coincident", 64, 3, -1, 1))
sketch1.addConstraint(Sketcher.Constraint("Equal", 2, 18))
sketch1.addConstraint(Sketcher.Constraint("Equal", 18, 34))
sketch1.addConstraint(Sketcher.Constraint("Equal", 34, 50))
sketch1.addConstraint(Sketcher.Constraint("Symmetric", 2, 3, 34, 3, -1, 1))
sketch1.addConstraint(Sketcher.Constraint("Symmetric", 18, 3, 50, 3, -1, 1))
sketch1.addConstraint(Sketcher.Constraint("Symmetric", 4, 2, 36, 2, -1, 1))
sketch1.addConstraint(Sketcher.Constraint("Symmetric", 6, 2, 38, 2, -1, 1))
sketch1.addConstraint(Sketcher.Constraint("Symmetric", 8, 2, 40, 2, -1, 1))
sketch1.addConstraint(Sketcher.Constraint("Symmetric", 9, 2, 41, 2, -1, 1))
sketch1.addConstraint(Sketcher.Constraint("Symmetric", 11, 2, 43, 2, -1, 1))
sketch1.addConstraint(Sketcher.Constraint("Symmetric", 13, 2, 45, 2, -1, 1))
sketch1.addConstraint(Sketcher.Constraint("Symmetric", 15, 2, 47, 2, -1, 1))
sketch1.addConstraint(Sketcher.Constraint("Symmetric", 20, 2, 52, 2, -1, 1))
sketch1.addConstraint(Sketcher.Constraint("Symmetric", 22, 2, 54, 2, -1, 1))
sketch1.addConstraint(Sketcher.Constraint("Symmetric", 24, 2, 56, 2, -1, 1))
sketch1.addConstraint(Sketcher.Constraint("Symmetric", 25, 2, 57, 2, -1, 1))
sketch1.addConstraint(Sketcher.Constraint("Symmetric", 27, 2, 59, 2, -1, 1))
sketch1.addConstraint(Sketcher.Constraint("Symmetric", 29, 2, 61, 2, -1, 1))
sketch1.addConstraint(Sketcher.Constraint("Symmetric", 31, 2, 63, 2, -1, 1))
sketch1.addConstraint(Sketcher.Constraint("Symmetric", 18, 3, 34, 3, -2))
sketch1.addConstraint(Sketcher.Constraint("Symmetric", 24, 2, 27, 2, -2))
sketch1.addConstraint(Sketcher.Constraint("Symmetric", 22, 2, 29, 2, -2))
sketch1.addConstraint(Sketcher.Constraint("Symmetric", 20, 2, 31, 2, -2))
sketch1.addConstraint(Sketcher.Constraint("Symmetric", 15, 2, 36, 2, -2))
sketch1.addConstraint(Sketcher.Constraint("Symmetric", 13, 2, 38, 2, -2))
sketch1.addConstraint(Sketcher.Constraint("Symmetric", 11, 2, 40, 2, -2))
sketch1.addConstraint(Sketcher.Constraint("Perpendicular", 9, 11))
sketch1.addConstraint(Sketcher.Constraint("Parallel", 11, 25))
sketch1.addConstraint(Sketcher.Constraint("Perpendicular", 25, 27))
sketch1.addConstraint(Sketcher.Constraint("Perpendicular", 41, 43))
sketch1.addConstraint(Sketcher.Constraint("Perpendicular", 57, 59))
sketch1.addConstraint(Sketcher.Constraint("Horizontal", 10, 2, 41, 2))
sketch1.addConstraint(Sketcher.Constraint("Equal", 14, 21))
sketch1.addConstraint(Sketcher.Constraint("Equal", 48, 0))
sketch1.addConstraint(Sketcher.Constraint("Equal", 51, 3))
sketch1.addConstraint(Sketcher.Constraint("Equal", 63, 5))
sketch1.addConstraint(Sketcher.Constraint("Equal", 61, 7))
sketch1.addConstraint(Sketcher.Constraint("Equal", 58, 10))
sketch1.addConstraint(Sketcher.Constraint("Equal", 15, 22))
sketch1.addConstraint(Sketcher.Constraint("Equal", 44, 24))
sketch1.addConstraint(Sketcher.Constraint("Equal", 11, 25))
sketch1.addConstraint(Sketcher.Constraint("Diameter", 64, 6.8))
sketch1.addConstraint(Sketcher.Constraint("Radius", 2, 2.5))
sketch1.addConstraint(Sketcher.Constraint("DistanceX", 6, 1, 6, 2, 1.0))
sketch1.addConstraint(Sketcher.Constraint("DistanceX", 1, 2, 1, 1, 7.4))
sketch1.addConstraint(Sketcher.Constraint("DistanceX", 4, 1, 4, 2, 0.8))
sketch1.addConstraint(Sketcher.Constraint("DistanceY", -1, 1, 0, 2, 15.0))
sketch1.addConstraint(Sketcher.Constraint("DistanceX", 23, 2, 23, 1, 4.15))
sketch1.addConstraint(Sketcher.Constraint("DistanceX", 9, 2, -1, 1, 5.7))
sketch1.addConstraint(Sketcher.Constraint("DistanceX", 8, 1, 8, 2, 3.677208))
sketch1.setExpression("Constraints[158]", "Params.sketch1_diameter")
sketch1.setExpression("Constraints[159]", "Params.sketch1_radius")
sketch1.setExpression("Constraints[160]", "Params.sketch1_width")
sketch1.setExpression("Constraints[161]", "Params.sketch1_width2")
sketch1.setExpression("Constraints[162]", "Params.sketch1_width3")
pad1 = body.newObject("PartDesign::Pad", "Pad")
pad1.Profile = sketch1
pad1.setExpression("Length", "Params.pad1_length")

sketch2 = body.newObject("Sketcher::SketchObject", "Sketch001")
sketch2.AttachmentSupport = (doc.getObject("XY_Plane"), [""])
sketch2.MapMode = "FlatFace"
sketch2.AttachmentOffset = App.Placement(App.Vector(0, 0, 1450), App.Rotation())
sketch2.addGeometry(Part.LineSegment(App.Vector(13.7, 10.6, 0), App.Vector(13.7, 12.7, 0)), False)
sketch2.addGeometry(Part.ArcOfCircle(Part.Circle(App.Vector(12.7, 12.7, 0), App.Vector(0, 0, 1), 1), math.radians(0), math.radians(90)), False)
sketch2.addGeometry(Part.LineSegment(App.Vector(12.7, 13.7, 0), App.Vector(10.6, 13.7, 0)), False)
sketch2.addGeometry(Part.ArcOfCircle(Part.Circle(App.Vector(10.6, 12.7, 0), App.Vector(0, 0, 1), 1), math.radians(90), math.radians(180)), False)
sketch2.addGeometry(Part.LineSegment(App.Vector(9.6, 12.7, 0), App.Vector(9.6, 10.6, 0)), False)
sketch2.addGeometry(Part.ArcOfCircle(Part.Circle(App.Vector(10.6, 10.6, 0), App.Vector(0, 0, 1), 1), math.radians(-180), math.radians(-90)), False)
sketch2.addGeometry(Part.LineSegment(App.Vector(10.6, 9.6, 0), App.Vector(12.7, 9.6, 0)), False)
sketch2.addGeometry(Part.ArcOfCircle(Part.Circle(App.Vector(12.7, 10.6, 0), App.Vector(0, 0, 1), 1), math.radians(-90), math.radians(0)), False)
sketch2.addGeometry(Part.LineSegment(App.Vector(-10.6, 13.7, 0), App.Vector(-12.7, 13.7, 0)), False)
sketch2.addGeometry(Part.ArcOfCircle(Part.Circle(App.Vector(-12.7, 12.7, 0), App.Vector(0, 0, 1), 1), math.radians(90), math.radians(180)), False)
sketch2.addGeometry(Part.LineSegment(App.Vector(-13.7, 12.7, 0), App.Vector(-13.7, 10.6, 0)), False)
sketch2.addGeometry(Part.ArcOfCircle(Part.Circle(App.Vector(-12.7, 10.6, 0), App.Vector(0, 0, 1), 1), math.radians(-180), math.radians(-90)), False)
sketch2.addGeometry(Part.LineSegment(App.Vector(-12.7, 9.6, 0), App.Vector(-10.6, 9.6, 0)), False)
sketch2.addGeometry(Part.ArcOfCircle(Part.Circle(App.Vector(-10.6, 10.6, 0), App.Vector(0, 0, 1), 1), math.radians(-90), math.radians(0)), False)
sketch2.addGeometry(Part.LineSegment(App.Vector(-9.6, 10.6, 0), App.Vector(-9.6, 12.7, 0)), False)
sketch2.addGeometry(Part.ArcOfCircle(Part.Circle(App.Vector(-10.6, 12.7, 0), App.Vector(0, 0, 1), 1), math.radians(0), math.radians(90)), False)
sketch2.addGeometry(Part.LineSegment(App.Vector(10.6, -13.7, 0), App.Vector(12.7, -13.7, 0)), False)
sketch2.addGeometry(Part.ArcOfCircle(Part.Circle(App.Vector(12.7, -12.7, 0), App.Vector(0, 0, 1), 1), math.radians(-90), math.radians(0)), False)
sketch2.addGeometry(Part.LineSegment(App.Vector(13.7, -12.7, 0), App.Vector(13.7, -10.6, 0)), False)
sketch2.addGeometry(Part.ArcOfCircle(Part.Circle(App.Vector(12.7, -10.6, 0), App.Vector(0, 0, 1), 1), math.radians(0), math.radians(90)), False)
sketch2.addGeometry(Part.LineSegment(App.Vector(12.7, -9.6, 0), App.Vector(10.6, -9.6, 0)), False)
sketch2.addGeometry(Part.ArcOfCircle(Part.Circle(App.Vector(10.6, -10.6, 0), App.Vector(0, 0, 1), 1), math.radians(90), math.radians(180)), False)
sketch2.addGeometry(Part.LineSegment(App.Vector(9.6, -10.6, 0), App.Vector(9.6, -12.7, 0)), False)
sketch2.addGeometry(Part.ArcOfCircle(Part.Circle(App.Vector(10.6, -12.7, 0), App.Vector(0, 0, 1), 1), math.radians(-180), math.radians(-90)), False)
sketch2.addGeometry(Part.LineSegment(App.Vector(-13.7, -10.6, 0), App.Vector(-13.7, -12.7, 0)), False)
sketch2.addGeometry(Part.ArcOfCircle(Part.Circle(App.Vector(-12.7, -12.7, 0), App.Vector(0, 0, 1), 1), math.radians(-180), math.radians(-90)), False)
sketch2.addGeometry(Part.LineSegment(App.Vector(-12.7, -13.7, 0), App.Vector(-10.6, -13.7, 0)), False)
sketch2.addGeometry(Part.ArcOfCircle(Part.Circle(App.Vector(-10.6, -12.7, 0), App.Vector(0, 0, 1), 1), math.radians(-90), math.radians(0)), False)
sketch2.addGeometry(Part.LineSegment(App.Vector(-9.6, -12.7, 0), App.Vector(-9.6, -10.6, 0)), False)
sketch2.addGeometry(Part.ArcOfCircle(Part.Circle(App.Vector(-10.6, -10.6, 0), App.Vector(0, 0, 1), 1), math.radians(0), math.radians(90)), False)
sketch2.addGeometry(Part.LineSegment(App.Vector(-10.6, -9.6, 0), App.Vector(-12.7, -9.6, 0)), False)
sketch2.addGeometry(Part.ArcOfCircle(Part.Circle(App.Vector(-12.7, -10.6, 0), App.Vector(0, 0, 1), 1), math.radians(90), math.radians(180)), False)
sketch2.addConstraint(Sketcher.Constraint("Tangent", 0, 2, 1, 1))
sketch2.addConstraint(Sketcher.Constraint("Tangent", 1, 2, 2, 1))
sketch2.addConstraint(Sketcher.Constraint("Tangent", 2, 2, 3, 1))
sketch2.addConstraint(Sketcher.Constraint("Tangent", 3, 2, 4, 1))
sketch2.addConstraint(Sketcher.Constraint("Tangent", 4, 2, 5, 1))
sketch2.addConstraint(Sketcher.Constraint("Tangent", 5, 2, 6, 1))
sketch2.addConstraint(Sketcher.Constraint("Tangent", 6, 2, 7, 1))
sketch2.addConstraint(Sketcher.Constraint("Tangent", 7, 2, 0, 1))
sketch2.addConstraint(Sketcher.Constraint("Tangent", 8, 2, 9, 1))
sketch2.addConstraint(Sketcher.Constraint("Tangent", 9, 2, 10, 1))
sketch2.addConstraint(Sketcher.Constraint("Tangent", 10, 2, 11, 1))
sketch2.addConstraint(Sketcher.Constraint("Tangent", 11, 2, 12, 1))
sketch2.addConstraint(Sketcher.Constraint("Tangent", 12, 2, 13, 1))
sketch2.addConstraint(Sketcher.Constraint("Tangent", 13, 2, 14, 1))
sketch2.addConstraint(Sketcher.Constraint("Tangent", 14, 2, 15, 1))
sketch2.addConstraint(Sketcher.Constraint("Tangent", 15, 2, 8, 1))
sketch2.addConstraint(Sketcher.Constraint("Tangent", 16, 2, 17, 1))
sketch2.addConstraint(Sketcher.Constraint("Tangent", 17, 2, 18, 1))
sketch2.addConstraint(Sketcher.Constraint("Tangent", 18, 2, 19, 1))
sketch2.addConstraint(Sketcher.Constraint("Tangent", 19, 2, 20, 1))
sketch2.addConstraint(Sketcher.Constraint("Tangent", 20, 2, 21, 1))
sketch2.addConstraint(Sketcher.Constraint("Tangent", 21, 2, 22, 1))
sketch2.addConstraint(Sketcher.Constraint("Tangent", 22, 2, 23, 1))
sketch2.addConstraint(Sketcher.Constraint("Tangent", 23, 2, 16, 1))
sketch2.addConstraint(Sketcher.Constraint("Tangent", 24, 2, 25, 1))
sketch2.addConstraint(Sketcher.Constraint("Tangent", 25, 2, 26, 1))
sketch2.addConstraint(Sketcher.Constraint("Tangent", 26, 2, 27, 1))
sketch2.addConstraint(Sketcher.Constraint("Tangent", 27, 2, 28, 1))
sketch2.addConstraint(Sketcher.Constraint("Tangent", 28, 2, 29, 1))
sketch2.addConstraint(Sketcher.Constraint("Tangent", 29, 2, 30, 1))
sketch2.addConstraint(Sketcher.Constraint("Tangent", 30, 2, 31, 1))
sketch2.addConstraint(Sketcher.Constraint("Tangent", 31, 2, 24, 1))
sketch2.addConstraint(Sketcher.Constraint("Vertical", 0))
sketch2.addConstraint(Sketcher.Constraint("Horizontal", 2))
sketch2.addConstraint(Sketcher.Constraint("Vertical", 4))
sketch2.addConstraint(Sketcher.Constraint("Horizontal", 6))
sketch2.addConstraint(Sketcher.Constraint("Horizontal", 8))
sketch2.addConstraint(Sketcher.Constraint("Vertical", 10))
sketch2.addConstraint(Sketcher.Constraint("Horizontal", 12))
sketch2.addConstraint(Sketcher.Constraint("Vertical", 14))
sketch2.addConstraint(Sketcher.Constraint("Horizontal", 16))
sketch2.addConstraint(Sketcher.Constraint("Vertical", 18))
sketch2.addConstraint(Sketcher.Constraint("Horizontal", 20))
sketch2.addConstraint(Sketcher.Constraint("Vertical", 22))
sketch2.addConstraint(Sketcher.Constraint("Vertical", 24))
sketch2.addConstraint(Sketcher.Constraint("Horizontal", 26))
sketch2.addConstraint(Sketcher.Constraint("Vertical", 28))
sketch2.addConstraint(Sketcher.Constraint("Horizontal", 30))
sketch2.addConstraint(Sketcher.Constraint("Equal", 1, 3))
sketch2.addConstraint(Sketcher.Constraint("Equal", 3, 5))
sketch2.addConstraint(Sketcher.Constraint("Equal", 5, 7))
sketch2.addConstraint(Sketcher.Constraint("Equal", 7, 9))
sketch2.addConstraint(Sketcher.Constraint("Equal", 9, 11))
sketch2.addConstraint(Sketcher.Constraint("Equal", 11, 13))
sketch2.addConstraint(Sketcher.Constraint("Equal", 13, 15))
sketch2.addConstraint(Sketcher.Constraint("Equal", 15, 17))
sketch2.addConstraint(Sketcher.Constraint("Equal", 17, 19))
sketch2.addConstraint(Sketcher.Constraint("Equal", 19, 21))
sketch2.addConstraint(Sketcher.Constraint("Equal", 21, 23))
sketch2.addConstraint(Sketcher.Constraint("Equal", 23, 25))
sketch2.addConstraint(Sketcher.Constraint("Equal", 25, 27))
sketch2.addConstraint(Sketcher.Constraint("Equal", 27, 29))
sketch2.addConstraint(Sketcher.Constraint("Equal", 29, 31))
sketch2.addConstraint(Sketcher.Constraint("Symmetric", 9, 3, 17, 3, -1, 1))
sketch2.addConstraint(Sketcher.Constraint("Symmetric", 13, 3, 21, 3, -1, 1))
sketch2.addConstraint(Sketcher.Constraint("Symmetric", 1, 3, 25, 3, -1, 1))
sketch2.addConstraint(Sketcher.Constraint("Symmetric", 5, 3, 29, 3, -1, 1))
sketch2.addConstraint(Sketcher.Constraint("Symmetric", 1, 3, 9, 3, -2))
sketch2.addConstraint(Sketcher.Constraint("Symmetric", 5, 3, 13, 3, -2))
sketch2.addConstraint(Sketcher.Constraint("Equal", 30, 0))
sketch2.addConstraint(Sketcher.Constraint("Radius", 1, 1.0))
sketch2.addConstraint(Sketcher.Constraint("DistanceX", 2, 2, 2, 1, 2.15))
sketch2.addConstraint(Sketcher.Constraint("DistanceX", -1, 1, 1, 3, 12.7))
sketch2.addConstraint(Sketcher.Constraint("DistanceY", -1, 1, 1, 3, 12.7))
sketch2.setExpression("Constraints[70]", "Params.sketch2_radius")
sketch2.setExpression("Constraints[71]", "Params.sketch2_width")
pocket1 = body.newObject("PartDesign::Pocket", "Pocket")
pocket1.Profile = sketch2
pocket1.Type = "ThroughAll"

doc.recompute()
